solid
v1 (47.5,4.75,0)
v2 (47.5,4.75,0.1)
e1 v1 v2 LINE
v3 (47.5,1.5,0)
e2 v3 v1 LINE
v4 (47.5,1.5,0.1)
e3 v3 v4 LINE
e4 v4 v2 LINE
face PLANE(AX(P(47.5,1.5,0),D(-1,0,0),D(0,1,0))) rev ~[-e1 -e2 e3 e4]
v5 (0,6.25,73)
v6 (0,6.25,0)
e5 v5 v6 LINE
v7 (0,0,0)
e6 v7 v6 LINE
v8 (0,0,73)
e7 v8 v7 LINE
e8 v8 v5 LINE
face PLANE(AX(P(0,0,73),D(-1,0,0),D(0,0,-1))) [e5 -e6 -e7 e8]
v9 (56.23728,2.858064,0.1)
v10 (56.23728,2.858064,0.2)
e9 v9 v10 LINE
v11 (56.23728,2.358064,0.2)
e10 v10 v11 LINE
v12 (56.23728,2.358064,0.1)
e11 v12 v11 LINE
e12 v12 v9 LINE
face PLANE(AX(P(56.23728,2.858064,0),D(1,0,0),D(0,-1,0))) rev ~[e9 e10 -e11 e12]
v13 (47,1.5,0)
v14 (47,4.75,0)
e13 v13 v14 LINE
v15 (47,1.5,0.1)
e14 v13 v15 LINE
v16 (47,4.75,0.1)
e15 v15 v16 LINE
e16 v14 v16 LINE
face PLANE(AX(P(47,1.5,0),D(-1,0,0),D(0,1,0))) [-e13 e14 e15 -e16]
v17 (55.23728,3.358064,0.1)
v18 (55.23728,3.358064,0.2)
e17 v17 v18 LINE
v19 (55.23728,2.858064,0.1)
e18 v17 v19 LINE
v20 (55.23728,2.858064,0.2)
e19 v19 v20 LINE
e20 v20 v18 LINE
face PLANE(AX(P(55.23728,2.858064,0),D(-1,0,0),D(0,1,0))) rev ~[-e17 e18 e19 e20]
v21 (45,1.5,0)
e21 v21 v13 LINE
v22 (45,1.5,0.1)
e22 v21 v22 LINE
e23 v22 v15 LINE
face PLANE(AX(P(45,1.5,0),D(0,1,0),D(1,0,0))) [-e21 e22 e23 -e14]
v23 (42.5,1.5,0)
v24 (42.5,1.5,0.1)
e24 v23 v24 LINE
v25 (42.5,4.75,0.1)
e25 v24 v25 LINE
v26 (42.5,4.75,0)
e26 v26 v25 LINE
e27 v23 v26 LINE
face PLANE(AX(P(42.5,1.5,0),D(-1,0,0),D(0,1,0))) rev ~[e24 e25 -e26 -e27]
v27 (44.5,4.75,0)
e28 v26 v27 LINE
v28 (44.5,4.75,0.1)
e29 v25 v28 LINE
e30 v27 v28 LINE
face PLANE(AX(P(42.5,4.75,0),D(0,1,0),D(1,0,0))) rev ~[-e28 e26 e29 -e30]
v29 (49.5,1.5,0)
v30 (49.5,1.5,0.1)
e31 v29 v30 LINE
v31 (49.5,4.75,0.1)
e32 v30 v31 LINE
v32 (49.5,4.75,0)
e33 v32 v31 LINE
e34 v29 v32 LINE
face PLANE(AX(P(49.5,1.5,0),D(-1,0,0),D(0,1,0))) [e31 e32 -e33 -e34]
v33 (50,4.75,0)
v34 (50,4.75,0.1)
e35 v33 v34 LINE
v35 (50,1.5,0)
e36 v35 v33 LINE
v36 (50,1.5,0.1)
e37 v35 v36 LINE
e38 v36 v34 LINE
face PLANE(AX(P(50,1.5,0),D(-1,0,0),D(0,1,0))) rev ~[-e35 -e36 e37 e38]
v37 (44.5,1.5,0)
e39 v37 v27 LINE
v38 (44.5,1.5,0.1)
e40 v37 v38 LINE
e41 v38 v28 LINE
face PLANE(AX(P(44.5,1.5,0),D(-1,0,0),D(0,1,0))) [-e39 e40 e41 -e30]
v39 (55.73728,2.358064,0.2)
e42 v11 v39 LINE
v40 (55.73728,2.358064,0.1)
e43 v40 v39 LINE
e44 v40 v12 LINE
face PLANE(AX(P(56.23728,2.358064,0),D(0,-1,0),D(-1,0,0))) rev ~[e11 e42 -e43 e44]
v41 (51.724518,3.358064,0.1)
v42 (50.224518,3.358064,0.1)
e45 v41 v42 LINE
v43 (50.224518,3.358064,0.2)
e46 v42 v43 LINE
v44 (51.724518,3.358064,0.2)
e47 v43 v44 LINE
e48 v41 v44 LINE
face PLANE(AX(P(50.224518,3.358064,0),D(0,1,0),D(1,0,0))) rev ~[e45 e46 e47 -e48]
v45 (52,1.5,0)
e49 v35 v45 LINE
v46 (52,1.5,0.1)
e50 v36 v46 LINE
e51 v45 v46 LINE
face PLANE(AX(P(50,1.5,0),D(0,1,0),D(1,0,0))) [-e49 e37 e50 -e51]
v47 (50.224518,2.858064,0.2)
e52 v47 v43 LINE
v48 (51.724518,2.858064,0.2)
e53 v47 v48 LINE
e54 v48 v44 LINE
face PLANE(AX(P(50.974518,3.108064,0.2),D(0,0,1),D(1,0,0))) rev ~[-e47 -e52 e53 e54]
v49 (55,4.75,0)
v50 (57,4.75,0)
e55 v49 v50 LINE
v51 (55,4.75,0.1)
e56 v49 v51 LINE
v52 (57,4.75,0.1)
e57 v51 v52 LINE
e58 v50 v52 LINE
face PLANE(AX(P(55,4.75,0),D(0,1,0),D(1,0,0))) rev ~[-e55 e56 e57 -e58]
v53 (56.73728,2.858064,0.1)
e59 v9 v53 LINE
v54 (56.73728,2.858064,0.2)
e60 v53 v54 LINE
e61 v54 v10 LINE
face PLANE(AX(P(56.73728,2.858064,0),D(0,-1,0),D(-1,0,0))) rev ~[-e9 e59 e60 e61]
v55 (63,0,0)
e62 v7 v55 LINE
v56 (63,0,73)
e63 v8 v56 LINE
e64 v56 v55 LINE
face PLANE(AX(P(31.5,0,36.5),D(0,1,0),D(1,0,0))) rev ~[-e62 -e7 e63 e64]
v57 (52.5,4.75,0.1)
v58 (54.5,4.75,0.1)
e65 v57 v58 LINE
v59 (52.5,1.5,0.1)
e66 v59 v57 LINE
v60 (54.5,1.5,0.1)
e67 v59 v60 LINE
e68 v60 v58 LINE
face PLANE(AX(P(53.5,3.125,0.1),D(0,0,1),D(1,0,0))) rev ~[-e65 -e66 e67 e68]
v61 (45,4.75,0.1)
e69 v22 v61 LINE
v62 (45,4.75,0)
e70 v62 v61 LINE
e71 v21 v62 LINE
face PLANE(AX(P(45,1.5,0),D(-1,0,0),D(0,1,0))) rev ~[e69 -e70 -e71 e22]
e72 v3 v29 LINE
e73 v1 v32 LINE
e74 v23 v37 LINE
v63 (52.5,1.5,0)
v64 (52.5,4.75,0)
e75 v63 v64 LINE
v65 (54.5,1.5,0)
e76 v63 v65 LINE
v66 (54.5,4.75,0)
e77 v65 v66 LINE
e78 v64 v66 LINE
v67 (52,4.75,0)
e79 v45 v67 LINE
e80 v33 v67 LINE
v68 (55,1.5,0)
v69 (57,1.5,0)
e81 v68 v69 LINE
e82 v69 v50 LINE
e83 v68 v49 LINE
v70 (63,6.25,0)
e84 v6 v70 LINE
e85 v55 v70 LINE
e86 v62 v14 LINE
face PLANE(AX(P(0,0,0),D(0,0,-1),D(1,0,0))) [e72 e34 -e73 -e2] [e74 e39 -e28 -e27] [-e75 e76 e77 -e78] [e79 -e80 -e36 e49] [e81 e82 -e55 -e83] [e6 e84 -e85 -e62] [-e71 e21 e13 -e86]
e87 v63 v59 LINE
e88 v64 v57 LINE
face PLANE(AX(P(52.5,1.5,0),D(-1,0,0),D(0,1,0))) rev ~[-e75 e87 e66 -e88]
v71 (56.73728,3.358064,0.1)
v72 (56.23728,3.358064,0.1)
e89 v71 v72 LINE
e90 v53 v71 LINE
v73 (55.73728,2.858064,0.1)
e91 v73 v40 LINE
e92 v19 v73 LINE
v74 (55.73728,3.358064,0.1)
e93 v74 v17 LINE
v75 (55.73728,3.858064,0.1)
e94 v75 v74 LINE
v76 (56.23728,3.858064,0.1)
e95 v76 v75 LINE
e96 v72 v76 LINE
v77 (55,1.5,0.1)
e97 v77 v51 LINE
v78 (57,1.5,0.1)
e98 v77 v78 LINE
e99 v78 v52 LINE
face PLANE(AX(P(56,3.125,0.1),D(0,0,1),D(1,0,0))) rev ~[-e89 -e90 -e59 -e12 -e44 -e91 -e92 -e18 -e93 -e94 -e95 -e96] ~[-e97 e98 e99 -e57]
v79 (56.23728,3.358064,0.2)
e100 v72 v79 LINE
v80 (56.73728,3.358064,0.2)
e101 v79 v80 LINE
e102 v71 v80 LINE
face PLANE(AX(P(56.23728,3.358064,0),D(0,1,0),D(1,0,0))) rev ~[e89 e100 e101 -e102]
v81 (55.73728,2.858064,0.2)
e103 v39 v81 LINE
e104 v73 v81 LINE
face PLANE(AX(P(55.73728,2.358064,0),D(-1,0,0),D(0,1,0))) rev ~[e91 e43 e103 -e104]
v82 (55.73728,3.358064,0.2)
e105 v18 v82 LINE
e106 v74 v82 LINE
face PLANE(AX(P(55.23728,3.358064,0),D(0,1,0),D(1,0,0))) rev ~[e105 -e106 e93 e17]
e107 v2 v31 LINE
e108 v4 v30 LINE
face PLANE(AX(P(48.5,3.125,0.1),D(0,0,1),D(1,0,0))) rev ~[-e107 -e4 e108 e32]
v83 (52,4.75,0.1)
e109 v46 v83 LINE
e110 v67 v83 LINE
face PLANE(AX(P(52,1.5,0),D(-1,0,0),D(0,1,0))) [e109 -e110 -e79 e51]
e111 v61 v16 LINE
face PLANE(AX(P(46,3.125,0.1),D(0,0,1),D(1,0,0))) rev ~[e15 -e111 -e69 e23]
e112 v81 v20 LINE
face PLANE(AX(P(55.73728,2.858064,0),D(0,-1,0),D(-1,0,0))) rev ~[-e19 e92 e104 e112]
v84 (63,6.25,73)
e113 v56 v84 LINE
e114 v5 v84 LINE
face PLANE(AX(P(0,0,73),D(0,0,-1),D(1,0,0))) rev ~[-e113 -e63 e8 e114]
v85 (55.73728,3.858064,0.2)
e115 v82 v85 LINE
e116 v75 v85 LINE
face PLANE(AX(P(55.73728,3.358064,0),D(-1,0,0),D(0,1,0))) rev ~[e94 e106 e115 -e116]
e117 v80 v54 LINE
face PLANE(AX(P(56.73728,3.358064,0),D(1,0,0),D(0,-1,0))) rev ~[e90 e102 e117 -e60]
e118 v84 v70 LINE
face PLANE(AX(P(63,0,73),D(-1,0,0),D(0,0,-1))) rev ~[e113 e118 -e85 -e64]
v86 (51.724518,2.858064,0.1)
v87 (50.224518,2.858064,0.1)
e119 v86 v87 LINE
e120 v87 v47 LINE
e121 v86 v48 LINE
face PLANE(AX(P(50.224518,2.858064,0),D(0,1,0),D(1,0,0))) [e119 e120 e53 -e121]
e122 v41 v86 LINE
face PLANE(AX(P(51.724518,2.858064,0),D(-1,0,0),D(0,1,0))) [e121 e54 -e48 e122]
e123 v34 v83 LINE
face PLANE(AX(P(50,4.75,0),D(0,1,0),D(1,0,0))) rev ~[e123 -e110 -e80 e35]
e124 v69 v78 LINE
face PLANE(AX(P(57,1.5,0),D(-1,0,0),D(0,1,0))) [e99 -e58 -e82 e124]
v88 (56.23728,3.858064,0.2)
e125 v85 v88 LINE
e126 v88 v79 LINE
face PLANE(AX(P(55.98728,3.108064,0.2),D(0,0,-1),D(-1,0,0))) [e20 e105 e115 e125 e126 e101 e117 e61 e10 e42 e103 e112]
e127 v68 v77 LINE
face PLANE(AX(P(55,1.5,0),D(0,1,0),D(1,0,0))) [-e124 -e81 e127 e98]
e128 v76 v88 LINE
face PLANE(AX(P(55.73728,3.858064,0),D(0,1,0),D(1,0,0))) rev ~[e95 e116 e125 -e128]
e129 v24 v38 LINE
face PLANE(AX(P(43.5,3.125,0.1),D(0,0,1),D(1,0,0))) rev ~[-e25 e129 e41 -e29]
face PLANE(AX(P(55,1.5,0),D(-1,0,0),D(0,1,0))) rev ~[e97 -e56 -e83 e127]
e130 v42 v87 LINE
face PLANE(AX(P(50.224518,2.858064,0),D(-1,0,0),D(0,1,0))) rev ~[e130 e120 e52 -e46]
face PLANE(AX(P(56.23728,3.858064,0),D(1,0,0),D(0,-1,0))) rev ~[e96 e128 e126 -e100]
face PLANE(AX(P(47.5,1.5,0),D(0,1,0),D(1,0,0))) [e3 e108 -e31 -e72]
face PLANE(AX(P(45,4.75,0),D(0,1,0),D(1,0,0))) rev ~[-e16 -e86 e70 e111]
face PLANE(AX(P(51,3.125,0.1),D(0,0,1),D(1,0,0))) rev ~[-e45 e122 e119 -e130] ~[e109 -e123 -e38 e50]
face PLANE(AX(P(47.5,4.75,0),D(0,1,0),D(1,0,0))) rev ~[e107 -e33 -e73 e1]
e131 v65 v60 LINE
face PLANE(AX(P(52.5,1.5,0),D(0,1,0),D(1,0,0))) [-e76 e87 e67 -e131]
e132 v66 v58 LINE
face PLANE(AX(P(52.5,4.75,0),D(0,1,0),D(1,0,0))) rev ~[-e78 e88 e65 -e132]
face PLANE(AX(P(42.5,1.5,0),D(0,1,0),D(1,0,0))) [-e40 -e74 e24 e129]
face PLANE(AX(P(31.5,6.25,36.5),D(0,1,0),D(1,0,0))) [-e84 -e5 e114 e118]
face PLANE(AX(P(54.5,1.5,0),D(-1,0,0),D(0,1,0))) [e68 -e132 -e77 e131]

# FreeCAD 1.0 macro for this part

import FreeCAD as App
import Part
import Sketcher

V = App.Vector

doc = App.newDocument("Part")
body = doc.addObject("PartDesign::Body", "Body")

sketch1 = body.newObject("Sketcher::SketchObject", "Sketch")
sketch1.AttachmentSupport = (doc.getObject("XZ_Plane"), [""])
sketch1.MapMode = "FlatFace"
sketch1.addGeometry(Part.LineSegment(V(0, 0, 0), V(0, 73, 0)), False)
sketch1.addGeometry(Part.LineSegment(V(0, 73, 0), V(63, 73, 0)), False)
sketch1.addGeometry(Part.LineSegment(V(63, 73, 0), V(63, 0, 0)), False)
sketch1.addGeometry(Part.LineSegment(V(63, 0, 0), V(0, 0, 0)), False)
sketch1.addConstraint(Sketcher.Constraint("Coincident", 0, 2, 1, 1))
sketch1.addConstraint(Sketcher.Constraint("Coincident", 1, 2, 2, 1))
sketch1.addConstraint(Sketcher.Constraint("Coincident", 2, 2, 3, 1))
sketch1.addConstraint(Sketcher.Constraint("Coincident", 3, 2, 0, 1))
sketch1.addConstraint(Sketcher.Constraint("Vertical", 0))
sketch1.addConstraint(Sketcher.Constraint("Horizontal", 1))
sketch1.addConstraint(Sketcher.Constraint("Vertical", 2))
sketch1.addConstraint(Sketcher.Constraint("Horizontal", 3))
sketch1.addConstraint(Sketcher.Constraint("Coincident", 3, 2, -1, 1))
sketch1.addConstraint(Sketcher.Constraint("DistanceX", 1, 1, 1, 2, 63.0))
sketch1.addConstraint(Sketcher.Constraint("DistanceY", 0, 1, 0, 2, 73.0))
pad1 = body.newObject("PartDesign::Pad", "Pad")
pad1.Profile = sketch1
pad1.Length = 6.25
pad1.Reversed = True

sketch2 = body.newObject("Sketcher::SketchObject", "Sketch001")
sketch2.AttachmentSupport = (doc.getObject("XY_Plane"), [""])
sketch2.MapMode = "FlatFace"
sketch2.addGeometry(Part.LineSegment(V(55, 4.8, 0), V(55, 1.5, 0)), False)
sketch2.addGeometry(Part.LineSegment(V(55, 1.5, 0), V(57, 1.5, 0)), False)
sketch2.addGeometry(Part.LineSegment(V(57, 1.5, 0), V(57, 4.8, 0)), False)
sketch2.addGeometry(Part.LineSegment(V(57, 4.8, 0), V(55, 4.8, 0)), False)
sketch2.addGeometry(Part.LineSegment(V(52.5, 4.8, 0), V(52.5, 1.5, 0)), False)
sketch2.addGeometry(Part.LineSegment(V(52.5, 1.5, 0), V(54.5, 1.5, 0)), False)
sketch2.addGeometry(Part.LineSegment(V(54.5, 1.5, 0), V(54.5, 4.8, 0)), False)
sketch2.addGeometry(Part.LineSegment(V(54.5, 4.8, 0), V(52.5, 4.8, 0)), False)
sketch2.addGeometry(Part.LineSegment(V(50, 4.8, 0), V(50, 1.5, 0)), False)
sketch2.addGeometry(Part.LineSegment(V(50, 1.5, 0), V(52, 1.5, 0)), False)
sketch2.addGeometry(Part.LineSegment(V(52, 1.5, 0), V(52, 4.8, 0)), False)
sketch2.addGeometry(Part.LineSegment(V(52, 4.8, 0), V(50, 4.8, 0)), False)
sketch2.addGeometry(Part.LineSegment(V(47.5, 4.8, 0), V(47.5, 1.5, 0)), False)
sketch2.addGeometry(Part.LineSegment(V(47.5, 1.5, 0), V(49.5, 1.5, 0)), False)
sketch2.addGeometry(Part.LineSegment(V(49.5, 1.5, 0), V(49.5, 4.8, 0)), False)
sketch2.addGeometry(Part.LineSegment(V(49.5, 4.8, 0), V(47.5, 4.8, 0)), False)
sketch2.addGeometry(Part.LineSegment(V(45, 4.8, 0), V(45, 1.5, 0)), False)
sketch2.addGeometry(Part.LineSegment(V(45, 1.5, 0), V(47, 1.5, 0)), False)
sketch2.addGeometry(Part.LineSegment(V(47, 1.5, 0), V(47, 4.8, 0)), False)
sketch2.addGeometry(Part.LineSegment(V(47, 4.8, 0), V(45, 4.8, 0)), False)
sketch2.addGeometry(Part.LineSegment(V(42.5, 4.8, 0), V(42.5, 1.5, 0)), False)
sketch2.addGeometry(Part.LineSegment(V(42.5, 1.5, 0), V(44.5, 1.5, 0)), False)
sketch2.addGeometry(Part.LineSegment(V(44.5, 1.5, 0), V(44.5, 4.8, 0)), False)
sketch2.addGeometry(Part.LineSegment(V(44.5, 4.8, 0), V(42.5, 4.8, 0)), False)
sketch2.addConstraint(Sketcher.Constraint("Coincident", 0, 2, 1, 1))
sketch2.addConstraint(Sketcher.Constraint("Coincident", 1, 2, 2, 1))
sketch2.addConstraint(Sketcher.Constraint("Coincident", 2, 2, 3, 1))
sketch2.addConstraint(Sketcher.Constraint("Coincident", 3, 2, 0, 1))
sketch2.addConstraint(Sketcher.Constraint("Coincident", 4, 2, 5, 1))
sketch2.addConstraint(Sketcher.Constraint("Coincident", 5, 2, 6, 1))
sketch2.addConstraint(Sketcher.Constraint("Coincident", 6, 2, 7, 1))
sketch2.addConstraint(Sketcher.Constraint("Coincident", 7, 2, 4, 1))
sketch2.addConstraint(Sketcher.Constraint("Coincident", 8, 2, 9, 1))
sketch2.addConstraint(Sketcher.Constraint("Coincident", 9, 2, 10, 1))
sketch2.addConstraint(Sketcher.Constraint("Coincident", 10, 2, 11, 1))
sketch2.addConstraint(Sketcher.Constraint("Coincident", 11, 2, 8, 1))
sketch2.addConstraint(Sketcher.Constraint("Coincident", 12, 2, 13, 1))
sketch2.addConstraint(Sketcher.Constraint("Coincident", 13, 2, 14, 1))
sketch2.addConstraint(Sketcher.Constraint("Coincident", 14, 2, 15, 1))
sketch2.addConstraint(Sketcher.Constraint("Coincident", 15, 2, 12, 1))
sketch2.addConstraint(Sketcher.Constraint("Coincident", 16, 2, 17, 1))
sketch2.addConstraint(Sketcher.Constraint("Coincident", 17, 2, 18, 1))
sketch2.addConstraint(Sketcher.Constraint("Coincident", 18, 2, 19, 1))
sketch2.addConstraint(Sketcher.Constraint("Coincident", 19, 2, 16, 1))
sketch2.addConstraint(Sketcher.Constraint("Coincident", 20, 2, 21, 1))
sketch2.addConstraint(Sketcher.Constraint("Coincident", 21, 2, 22, 1))
sketch2.addConstraint(Sketcher.Constraint("Coincident", 22, 2, 23, 1))
sketch2.addConstraint(Sketcher.Constraint("Coincident", 23, 2, 20, 1))
sketch2.addConstraint(Sketcher.Constraint("Vertical", 0))
sketch2.addConstraint(Sketcher.Constraint("Horizontal", 1))
sketch2.addConstraint(Sketcher.Constraint("Vertical", 2))
sketch2.addConstraint(Sketcher.Constraint("Horizontal", 3))
sketch2.addConstraint(Sketcher.Constraint("Vertical", 4))
sketch2.addConstraint(Sketcher.Constraint("Horizontal", 5))
sketch2.addConstraint(Sketcher.Constraint("Vertical", 6))
sketch2.addConstraint(Sketcher.Constraint("Horizontal", 7))
sketch2.addConstraint(Sketcher.Constraint("Vertical", 8))
sketch2.addConstraint(Sketcher.Constraint("Horizontal", 9))
sketch2.addConstraint(Sketcher.Constraint("Vertical", 10))
sketch2.addConstraint(Sketcher.Constraint("Horizontal", 11))
sketch2.addConstraint(Sketcher.Constraint("Vertical", 12))
sketch2.addConstraint(Sketcher.Constraint("Horizontal", 13))
sketch2.addConstraint(Sketcher.Constraint("Vertical", 14))
sketch2.addConstraint(Sketcher.Constraint("Horizontal", 15))
sketch2.addConstraint(Sketcher.Constraint("Vertical", 16))
sketch2.addConstraint(Sketcher.Constraint("Horizontal", 17))
sketch2.addConstraint(Sketcher.Constraint("Vertical", 18))
sketch2.addConstraint(Sketcher.Constraint("Horizontal", 19))
sketch2.addConstraint(Sketcher.Constraint("Vertical", 20))
sketch2.addConstraint(Sketcher.Constraint("Horizontal", 21))
sketch2.addConstraint(Sketcher.Constraint("Vertical", 22))
sketch2.addConstraint(Sketcher.Constraint("Horizontal", 23))
sketch2.addConstraint(Sketcher.Constraint("Horizontal", 1, 2, 4, 2))
sketch2.addConstraint(Sketcher.Constraint("Horizontal", 3, 2, 6, 2))
sketch2.addConstraint(Sketcher.Constraint("Horizontal", 5, 2, 8, 2))
sketch2.addConstraint(Sketcher.Constraint("Horizontal", 7, 2, 10, 2))
sketch2.addConstraint(Sketcher.Constraint("Horizontal", 9, 2, 12, 2))
sketch2.addConstraint(Sketcher.Constraint("Horizontal", 11, 2, 14, 2))
sketch2.addConstraint(Sketcher.Constraint("Horizontal", 13, 2, 16, 2))
sketch2.addConstraint(Sketcher.Constraint("Horizontal", 15, 2, 18, 2))
sketch2.addConstraint(Sketcher.Constraint("Horizontal", 17, 2, 20, 2))
sketch2.addConstraint(Sketcher.Constraint("Horizontal", 19, 2, 22, 2))
sketch2.addConstraint(Sketcher.Constraint("Equal", 3, 5))
sketch2.addConstraint(Sketcher.Constraint("Equal", 7, 9))
sketch2.addConstraint(Sketcher.Constraint("Equal", 11, 13))
sketch2.addConstraint(Sketcher.Constraint("Equal", 15, 17))
sketch2.addConstraint(Sketcher.Constraint("Equal", 19, 21))
sketch2.addConstraint(Sketcher.Constraint("DistanceX", 1, 1, 1, 2, 2.0))
sketch2.addConstraint(Sketcher.Constraint("DistanceX", -1, 1, 0, 2, 55.0))
sketch2.addConstraint(Sketcher.Constraint("DistanceX", -1, 1, 8, 2, 50.0))
sketch2.addConstraint(Sketcher.Constraint("DistanceX", -1, 1, 16, 2, 45.0))
sketch2.addConstraint(Sketcher.Constraint("DistanceX", 12, 2, 4, 2, 5.0))
sketch2.addConstraint(Sketcher.Constraint("DistanceX", 20, 2, 12, 2, 5.0))
sketch2.addConstraint(Sketcher.Constraint("DistanceY", 0, 2, 0, 1, 3.25))
sketch2.addConstraint(Sketcher.Constraint("DistanceY", -1, 1, 0, 2, 1.5))
sketch2.addConstraint(Sketcher.Constraint("DistanceX", -1, 1, 4, 2, 52.5))
pocket1 = body.newObject("PartDesign::Pocket", "Pocket")
pocket1.Profile = sketch2
pocket1.Length = 0.1
pocket1.Reversed = True

sketch3 = body.newObject("Sketcher::SketchObject", "Sketch002")
sketch3.AttachmentSupport = (doc.getObject("XY_Plane"), [""])
sketch3.MapMode = "FlatFace"
sketch3.addGeometry(Part.LineSegment(V(55.7, 2.9, 0), V(55.7, 2.4, 0)), False)
sketch3.addGeometry(Part.LineSegment(V(55.7, 2.4, 0), V(56.2, 2.4, 0)), False)
sketch3.addGeometry(Part.LineSegment(V(56.2, 2.4, 0), V(56.2, 2.9, 0)), False)
sketch3.addGeometry(Part.LineSegment(V(56.2, 2.9, 0), V(56.7, 2.9, 0)), False)
sketch3.addGeometry(Part.LineSegment(V(56.7, 2.9, 0), V(56.7, 3.4, 0)), False)
sketch3.addGeometry(Part.LineSegment(V(56.7, 3.4, 0), V(56.2, 3.4, 0)), False)
sketch3.addGeometry(Part.LineSegment(V(56.2, 3.4, 0), V(56.2, 3.9, 0)), False)
sketch3.addGeometry(Part.LineSegment(V(56.2, 3.9, 0), V(55.7, 3.9, 0)), False)
sketch3.addGeometry(Part.LineSegment(V(55.7, 3.9, 0), V(55.7, 3.4, 0)), False)
sketch3.addGeometry(Part.LineSegment(V(55.7, 3.4, 0), V(55.2, 3.4, 0)), False)
sketch3.addGeometry(Part.LineSegment(V(55.2, 3.4, 0), V(55.2, 2.9, 0)), False)
sketch3.addGeometry(Part.LineSegment(V(55.2, 2.9, 0), V(55.7, 2.9, 0)), False)
sketch3.addGeometry(Part.LineSegment(V(50.2, 3.4, 0), V(50.2, 2.9, 0)), False)
sketch3.addGeometry(Part.LineSegment(V(50.2, 2.9, 0), V(51.7, 2.9, 0)), False)
sketch3.addGeometry(Part.LineSegment(V(51.7, 2.9, 0), V(51.7, 3.4, 0)), False)
sketch3.addGeometry(Part.LineSegment(V(51.7, 3.4, 0), V(50.2, 3.4, 0)), False)
sketch3.addConstraint(Sketcher.Constraint("Coincident", 0, 2, 1, 1))
sketch3.addConstraint(Sketcher.Constraint("Coincident", 1, 2, 2, 1))
sketch3.addConstraint(Sketcher.Constraint("Coincident", 2, 2, 3, 1))
sketch3.addConstraint(Sketcher.Constraint("Coincident", 3, 2, 4, 1))
sketch3.addConstraint(Sketcher.Constraint("Coincident", 4, 2, 5, 1))
sketch3.addConstraint(Sketcher.Constraint("Coincident", 5, 2, 6, 1))
sketch3.addConstraint(Sketcher.Constraint("Coincident", 6, 2, 7, 1))
sketch3.addConstraint(Sketcher.Constraint("Coincident", 7, 2, 8, 1))
sketch3.addConstraint(Sketcher.Constraint("Coincident", 8, 2, 9, 1))
sketch3.addConstraint(Sketcher.Constraint("Coincident", 9, 2, 10, 1))
sketch3.addConstraint(Sketcher.Constraint("Coincident", 10, 2, 11, 1))
sketch3.addConstraint(Sketcher.Constraint("Coincident", 11, 2, 0, 1))
sketch3.addConstraint(Sketcher.Constraint("Coincident", 12, 2, 13, 1))
sketch3.addConstraint(Sketcher.Constraint("Coincident", 13, 2, 14, 1))
sketch3.addConstraint(Sketcher.Constraint("Coincident", 14, 2, 15, 1))
sketch3.addConstraint(Sketcher.Constraint("Coincident", 15, 2, 12, 1))
sketch3.addConstraint(Sketcher.Constraint("Vertical", 0))
sketch3.addConstraint(Sketcher.Constraint("Horizontal", 1))
sketch3.addConstraint(Sketcher.Constraint("Vertical", 2))
sketch3.addConstraint(Sketcher.Constraint("Horizontal", 3))
sketch3.addConstraint(Sketcher.Constraint("Vertical", 4))
sketch3.addConstraint(Sketcher.Constraint("Horizontal", 5))
sketch3.addConstraint(Sketcher.Constraint("Vertical", 6))
sketch3.addConstraint(Sketcher.Constraint("Horizontal", 7))
sketch3.addConstraint(Sketcher.Constraint("Vertical", 8))
sketch3.addConstraint(Sketcher.Constraint("Horizontal", 9))
sketch3.addConstraint(Sketcher.Constraint("Vertical", 10))
sketch3.addConstraint(Sketcher.Constraint("Horizontal", 11))
sketch3.addConstraint(Sketcher.Constraint("Vertical", 12))
sketch3.addConstraint(Sketcher.Constraint("Horizontal", 13))
sketch3.addConstraint(Sketcher.Constraint("Vertical", 14))
sketch3.addConstraint(Sketcher.Constraint("Horizontal", 15))
sketch3.addConstraint(Sketcher.Constraint("Horizontal", 5, 2, 8, 2))
sketch3.addConstraint(Sketcher.Constraint("Horizontal", 3, 2, 10, 2))
sketch3.addConstraint(Sketcher.Constraint("Horizontal", 11, 2, 12, 2))
sketch3.addConstraint(Sketcher.Constraint("Horizontal", 9, 2, 14, 2))
sketch3.addConstraint(Sketcher.Constraint("Vertical", 2, 2, 5, 2))
sketch3.addConstraint(Sketcher.Constraint("Vertical", 0, 2, 7, 2))
sketch3.addConstraint(Sketcher.Constraint("Equal", 1, 3))
sketch3.addConstraint(Sketcher.Constraint("Equal", 7, 9))
sketch3.addConstraint(Sketcher.Constraint("Equal", 11, 0))
sketch3.addConstraint(Sketcher.Constraint("Equal", 2, 4))
sketch3.addConstraint(Sketcher.Constraint("Equal", 4, 6))
sketch3.addConstraint(Sketcher.Constraint("DistanceX", 1, 1, 1, 2, 0.5))
sketch3.addConstraint(Sketcher.Constraint("DistanceX", 13, 1, 13, 2, 1.5))
sketch3.addConstraint(Sketcher.Constraint("DistanceX", -1, 1, 0, 2, 55.73728))
sketch3.addConstraint(Sketcher.Constraint("DistanceY", -1, 1, 0, 2, 2.358064))
sketch3.addConstraint(Sketcher.Constraint("DistanceX", -1, 1, 12, 2, 50.224518))
pocket2 = body.newObject("PartDesign::Pocket", "Pocket001")
pocket2.Profile = sketch3
pocket2.Length = 0.2
pocket2.Reversed = True

doc.recompute()
